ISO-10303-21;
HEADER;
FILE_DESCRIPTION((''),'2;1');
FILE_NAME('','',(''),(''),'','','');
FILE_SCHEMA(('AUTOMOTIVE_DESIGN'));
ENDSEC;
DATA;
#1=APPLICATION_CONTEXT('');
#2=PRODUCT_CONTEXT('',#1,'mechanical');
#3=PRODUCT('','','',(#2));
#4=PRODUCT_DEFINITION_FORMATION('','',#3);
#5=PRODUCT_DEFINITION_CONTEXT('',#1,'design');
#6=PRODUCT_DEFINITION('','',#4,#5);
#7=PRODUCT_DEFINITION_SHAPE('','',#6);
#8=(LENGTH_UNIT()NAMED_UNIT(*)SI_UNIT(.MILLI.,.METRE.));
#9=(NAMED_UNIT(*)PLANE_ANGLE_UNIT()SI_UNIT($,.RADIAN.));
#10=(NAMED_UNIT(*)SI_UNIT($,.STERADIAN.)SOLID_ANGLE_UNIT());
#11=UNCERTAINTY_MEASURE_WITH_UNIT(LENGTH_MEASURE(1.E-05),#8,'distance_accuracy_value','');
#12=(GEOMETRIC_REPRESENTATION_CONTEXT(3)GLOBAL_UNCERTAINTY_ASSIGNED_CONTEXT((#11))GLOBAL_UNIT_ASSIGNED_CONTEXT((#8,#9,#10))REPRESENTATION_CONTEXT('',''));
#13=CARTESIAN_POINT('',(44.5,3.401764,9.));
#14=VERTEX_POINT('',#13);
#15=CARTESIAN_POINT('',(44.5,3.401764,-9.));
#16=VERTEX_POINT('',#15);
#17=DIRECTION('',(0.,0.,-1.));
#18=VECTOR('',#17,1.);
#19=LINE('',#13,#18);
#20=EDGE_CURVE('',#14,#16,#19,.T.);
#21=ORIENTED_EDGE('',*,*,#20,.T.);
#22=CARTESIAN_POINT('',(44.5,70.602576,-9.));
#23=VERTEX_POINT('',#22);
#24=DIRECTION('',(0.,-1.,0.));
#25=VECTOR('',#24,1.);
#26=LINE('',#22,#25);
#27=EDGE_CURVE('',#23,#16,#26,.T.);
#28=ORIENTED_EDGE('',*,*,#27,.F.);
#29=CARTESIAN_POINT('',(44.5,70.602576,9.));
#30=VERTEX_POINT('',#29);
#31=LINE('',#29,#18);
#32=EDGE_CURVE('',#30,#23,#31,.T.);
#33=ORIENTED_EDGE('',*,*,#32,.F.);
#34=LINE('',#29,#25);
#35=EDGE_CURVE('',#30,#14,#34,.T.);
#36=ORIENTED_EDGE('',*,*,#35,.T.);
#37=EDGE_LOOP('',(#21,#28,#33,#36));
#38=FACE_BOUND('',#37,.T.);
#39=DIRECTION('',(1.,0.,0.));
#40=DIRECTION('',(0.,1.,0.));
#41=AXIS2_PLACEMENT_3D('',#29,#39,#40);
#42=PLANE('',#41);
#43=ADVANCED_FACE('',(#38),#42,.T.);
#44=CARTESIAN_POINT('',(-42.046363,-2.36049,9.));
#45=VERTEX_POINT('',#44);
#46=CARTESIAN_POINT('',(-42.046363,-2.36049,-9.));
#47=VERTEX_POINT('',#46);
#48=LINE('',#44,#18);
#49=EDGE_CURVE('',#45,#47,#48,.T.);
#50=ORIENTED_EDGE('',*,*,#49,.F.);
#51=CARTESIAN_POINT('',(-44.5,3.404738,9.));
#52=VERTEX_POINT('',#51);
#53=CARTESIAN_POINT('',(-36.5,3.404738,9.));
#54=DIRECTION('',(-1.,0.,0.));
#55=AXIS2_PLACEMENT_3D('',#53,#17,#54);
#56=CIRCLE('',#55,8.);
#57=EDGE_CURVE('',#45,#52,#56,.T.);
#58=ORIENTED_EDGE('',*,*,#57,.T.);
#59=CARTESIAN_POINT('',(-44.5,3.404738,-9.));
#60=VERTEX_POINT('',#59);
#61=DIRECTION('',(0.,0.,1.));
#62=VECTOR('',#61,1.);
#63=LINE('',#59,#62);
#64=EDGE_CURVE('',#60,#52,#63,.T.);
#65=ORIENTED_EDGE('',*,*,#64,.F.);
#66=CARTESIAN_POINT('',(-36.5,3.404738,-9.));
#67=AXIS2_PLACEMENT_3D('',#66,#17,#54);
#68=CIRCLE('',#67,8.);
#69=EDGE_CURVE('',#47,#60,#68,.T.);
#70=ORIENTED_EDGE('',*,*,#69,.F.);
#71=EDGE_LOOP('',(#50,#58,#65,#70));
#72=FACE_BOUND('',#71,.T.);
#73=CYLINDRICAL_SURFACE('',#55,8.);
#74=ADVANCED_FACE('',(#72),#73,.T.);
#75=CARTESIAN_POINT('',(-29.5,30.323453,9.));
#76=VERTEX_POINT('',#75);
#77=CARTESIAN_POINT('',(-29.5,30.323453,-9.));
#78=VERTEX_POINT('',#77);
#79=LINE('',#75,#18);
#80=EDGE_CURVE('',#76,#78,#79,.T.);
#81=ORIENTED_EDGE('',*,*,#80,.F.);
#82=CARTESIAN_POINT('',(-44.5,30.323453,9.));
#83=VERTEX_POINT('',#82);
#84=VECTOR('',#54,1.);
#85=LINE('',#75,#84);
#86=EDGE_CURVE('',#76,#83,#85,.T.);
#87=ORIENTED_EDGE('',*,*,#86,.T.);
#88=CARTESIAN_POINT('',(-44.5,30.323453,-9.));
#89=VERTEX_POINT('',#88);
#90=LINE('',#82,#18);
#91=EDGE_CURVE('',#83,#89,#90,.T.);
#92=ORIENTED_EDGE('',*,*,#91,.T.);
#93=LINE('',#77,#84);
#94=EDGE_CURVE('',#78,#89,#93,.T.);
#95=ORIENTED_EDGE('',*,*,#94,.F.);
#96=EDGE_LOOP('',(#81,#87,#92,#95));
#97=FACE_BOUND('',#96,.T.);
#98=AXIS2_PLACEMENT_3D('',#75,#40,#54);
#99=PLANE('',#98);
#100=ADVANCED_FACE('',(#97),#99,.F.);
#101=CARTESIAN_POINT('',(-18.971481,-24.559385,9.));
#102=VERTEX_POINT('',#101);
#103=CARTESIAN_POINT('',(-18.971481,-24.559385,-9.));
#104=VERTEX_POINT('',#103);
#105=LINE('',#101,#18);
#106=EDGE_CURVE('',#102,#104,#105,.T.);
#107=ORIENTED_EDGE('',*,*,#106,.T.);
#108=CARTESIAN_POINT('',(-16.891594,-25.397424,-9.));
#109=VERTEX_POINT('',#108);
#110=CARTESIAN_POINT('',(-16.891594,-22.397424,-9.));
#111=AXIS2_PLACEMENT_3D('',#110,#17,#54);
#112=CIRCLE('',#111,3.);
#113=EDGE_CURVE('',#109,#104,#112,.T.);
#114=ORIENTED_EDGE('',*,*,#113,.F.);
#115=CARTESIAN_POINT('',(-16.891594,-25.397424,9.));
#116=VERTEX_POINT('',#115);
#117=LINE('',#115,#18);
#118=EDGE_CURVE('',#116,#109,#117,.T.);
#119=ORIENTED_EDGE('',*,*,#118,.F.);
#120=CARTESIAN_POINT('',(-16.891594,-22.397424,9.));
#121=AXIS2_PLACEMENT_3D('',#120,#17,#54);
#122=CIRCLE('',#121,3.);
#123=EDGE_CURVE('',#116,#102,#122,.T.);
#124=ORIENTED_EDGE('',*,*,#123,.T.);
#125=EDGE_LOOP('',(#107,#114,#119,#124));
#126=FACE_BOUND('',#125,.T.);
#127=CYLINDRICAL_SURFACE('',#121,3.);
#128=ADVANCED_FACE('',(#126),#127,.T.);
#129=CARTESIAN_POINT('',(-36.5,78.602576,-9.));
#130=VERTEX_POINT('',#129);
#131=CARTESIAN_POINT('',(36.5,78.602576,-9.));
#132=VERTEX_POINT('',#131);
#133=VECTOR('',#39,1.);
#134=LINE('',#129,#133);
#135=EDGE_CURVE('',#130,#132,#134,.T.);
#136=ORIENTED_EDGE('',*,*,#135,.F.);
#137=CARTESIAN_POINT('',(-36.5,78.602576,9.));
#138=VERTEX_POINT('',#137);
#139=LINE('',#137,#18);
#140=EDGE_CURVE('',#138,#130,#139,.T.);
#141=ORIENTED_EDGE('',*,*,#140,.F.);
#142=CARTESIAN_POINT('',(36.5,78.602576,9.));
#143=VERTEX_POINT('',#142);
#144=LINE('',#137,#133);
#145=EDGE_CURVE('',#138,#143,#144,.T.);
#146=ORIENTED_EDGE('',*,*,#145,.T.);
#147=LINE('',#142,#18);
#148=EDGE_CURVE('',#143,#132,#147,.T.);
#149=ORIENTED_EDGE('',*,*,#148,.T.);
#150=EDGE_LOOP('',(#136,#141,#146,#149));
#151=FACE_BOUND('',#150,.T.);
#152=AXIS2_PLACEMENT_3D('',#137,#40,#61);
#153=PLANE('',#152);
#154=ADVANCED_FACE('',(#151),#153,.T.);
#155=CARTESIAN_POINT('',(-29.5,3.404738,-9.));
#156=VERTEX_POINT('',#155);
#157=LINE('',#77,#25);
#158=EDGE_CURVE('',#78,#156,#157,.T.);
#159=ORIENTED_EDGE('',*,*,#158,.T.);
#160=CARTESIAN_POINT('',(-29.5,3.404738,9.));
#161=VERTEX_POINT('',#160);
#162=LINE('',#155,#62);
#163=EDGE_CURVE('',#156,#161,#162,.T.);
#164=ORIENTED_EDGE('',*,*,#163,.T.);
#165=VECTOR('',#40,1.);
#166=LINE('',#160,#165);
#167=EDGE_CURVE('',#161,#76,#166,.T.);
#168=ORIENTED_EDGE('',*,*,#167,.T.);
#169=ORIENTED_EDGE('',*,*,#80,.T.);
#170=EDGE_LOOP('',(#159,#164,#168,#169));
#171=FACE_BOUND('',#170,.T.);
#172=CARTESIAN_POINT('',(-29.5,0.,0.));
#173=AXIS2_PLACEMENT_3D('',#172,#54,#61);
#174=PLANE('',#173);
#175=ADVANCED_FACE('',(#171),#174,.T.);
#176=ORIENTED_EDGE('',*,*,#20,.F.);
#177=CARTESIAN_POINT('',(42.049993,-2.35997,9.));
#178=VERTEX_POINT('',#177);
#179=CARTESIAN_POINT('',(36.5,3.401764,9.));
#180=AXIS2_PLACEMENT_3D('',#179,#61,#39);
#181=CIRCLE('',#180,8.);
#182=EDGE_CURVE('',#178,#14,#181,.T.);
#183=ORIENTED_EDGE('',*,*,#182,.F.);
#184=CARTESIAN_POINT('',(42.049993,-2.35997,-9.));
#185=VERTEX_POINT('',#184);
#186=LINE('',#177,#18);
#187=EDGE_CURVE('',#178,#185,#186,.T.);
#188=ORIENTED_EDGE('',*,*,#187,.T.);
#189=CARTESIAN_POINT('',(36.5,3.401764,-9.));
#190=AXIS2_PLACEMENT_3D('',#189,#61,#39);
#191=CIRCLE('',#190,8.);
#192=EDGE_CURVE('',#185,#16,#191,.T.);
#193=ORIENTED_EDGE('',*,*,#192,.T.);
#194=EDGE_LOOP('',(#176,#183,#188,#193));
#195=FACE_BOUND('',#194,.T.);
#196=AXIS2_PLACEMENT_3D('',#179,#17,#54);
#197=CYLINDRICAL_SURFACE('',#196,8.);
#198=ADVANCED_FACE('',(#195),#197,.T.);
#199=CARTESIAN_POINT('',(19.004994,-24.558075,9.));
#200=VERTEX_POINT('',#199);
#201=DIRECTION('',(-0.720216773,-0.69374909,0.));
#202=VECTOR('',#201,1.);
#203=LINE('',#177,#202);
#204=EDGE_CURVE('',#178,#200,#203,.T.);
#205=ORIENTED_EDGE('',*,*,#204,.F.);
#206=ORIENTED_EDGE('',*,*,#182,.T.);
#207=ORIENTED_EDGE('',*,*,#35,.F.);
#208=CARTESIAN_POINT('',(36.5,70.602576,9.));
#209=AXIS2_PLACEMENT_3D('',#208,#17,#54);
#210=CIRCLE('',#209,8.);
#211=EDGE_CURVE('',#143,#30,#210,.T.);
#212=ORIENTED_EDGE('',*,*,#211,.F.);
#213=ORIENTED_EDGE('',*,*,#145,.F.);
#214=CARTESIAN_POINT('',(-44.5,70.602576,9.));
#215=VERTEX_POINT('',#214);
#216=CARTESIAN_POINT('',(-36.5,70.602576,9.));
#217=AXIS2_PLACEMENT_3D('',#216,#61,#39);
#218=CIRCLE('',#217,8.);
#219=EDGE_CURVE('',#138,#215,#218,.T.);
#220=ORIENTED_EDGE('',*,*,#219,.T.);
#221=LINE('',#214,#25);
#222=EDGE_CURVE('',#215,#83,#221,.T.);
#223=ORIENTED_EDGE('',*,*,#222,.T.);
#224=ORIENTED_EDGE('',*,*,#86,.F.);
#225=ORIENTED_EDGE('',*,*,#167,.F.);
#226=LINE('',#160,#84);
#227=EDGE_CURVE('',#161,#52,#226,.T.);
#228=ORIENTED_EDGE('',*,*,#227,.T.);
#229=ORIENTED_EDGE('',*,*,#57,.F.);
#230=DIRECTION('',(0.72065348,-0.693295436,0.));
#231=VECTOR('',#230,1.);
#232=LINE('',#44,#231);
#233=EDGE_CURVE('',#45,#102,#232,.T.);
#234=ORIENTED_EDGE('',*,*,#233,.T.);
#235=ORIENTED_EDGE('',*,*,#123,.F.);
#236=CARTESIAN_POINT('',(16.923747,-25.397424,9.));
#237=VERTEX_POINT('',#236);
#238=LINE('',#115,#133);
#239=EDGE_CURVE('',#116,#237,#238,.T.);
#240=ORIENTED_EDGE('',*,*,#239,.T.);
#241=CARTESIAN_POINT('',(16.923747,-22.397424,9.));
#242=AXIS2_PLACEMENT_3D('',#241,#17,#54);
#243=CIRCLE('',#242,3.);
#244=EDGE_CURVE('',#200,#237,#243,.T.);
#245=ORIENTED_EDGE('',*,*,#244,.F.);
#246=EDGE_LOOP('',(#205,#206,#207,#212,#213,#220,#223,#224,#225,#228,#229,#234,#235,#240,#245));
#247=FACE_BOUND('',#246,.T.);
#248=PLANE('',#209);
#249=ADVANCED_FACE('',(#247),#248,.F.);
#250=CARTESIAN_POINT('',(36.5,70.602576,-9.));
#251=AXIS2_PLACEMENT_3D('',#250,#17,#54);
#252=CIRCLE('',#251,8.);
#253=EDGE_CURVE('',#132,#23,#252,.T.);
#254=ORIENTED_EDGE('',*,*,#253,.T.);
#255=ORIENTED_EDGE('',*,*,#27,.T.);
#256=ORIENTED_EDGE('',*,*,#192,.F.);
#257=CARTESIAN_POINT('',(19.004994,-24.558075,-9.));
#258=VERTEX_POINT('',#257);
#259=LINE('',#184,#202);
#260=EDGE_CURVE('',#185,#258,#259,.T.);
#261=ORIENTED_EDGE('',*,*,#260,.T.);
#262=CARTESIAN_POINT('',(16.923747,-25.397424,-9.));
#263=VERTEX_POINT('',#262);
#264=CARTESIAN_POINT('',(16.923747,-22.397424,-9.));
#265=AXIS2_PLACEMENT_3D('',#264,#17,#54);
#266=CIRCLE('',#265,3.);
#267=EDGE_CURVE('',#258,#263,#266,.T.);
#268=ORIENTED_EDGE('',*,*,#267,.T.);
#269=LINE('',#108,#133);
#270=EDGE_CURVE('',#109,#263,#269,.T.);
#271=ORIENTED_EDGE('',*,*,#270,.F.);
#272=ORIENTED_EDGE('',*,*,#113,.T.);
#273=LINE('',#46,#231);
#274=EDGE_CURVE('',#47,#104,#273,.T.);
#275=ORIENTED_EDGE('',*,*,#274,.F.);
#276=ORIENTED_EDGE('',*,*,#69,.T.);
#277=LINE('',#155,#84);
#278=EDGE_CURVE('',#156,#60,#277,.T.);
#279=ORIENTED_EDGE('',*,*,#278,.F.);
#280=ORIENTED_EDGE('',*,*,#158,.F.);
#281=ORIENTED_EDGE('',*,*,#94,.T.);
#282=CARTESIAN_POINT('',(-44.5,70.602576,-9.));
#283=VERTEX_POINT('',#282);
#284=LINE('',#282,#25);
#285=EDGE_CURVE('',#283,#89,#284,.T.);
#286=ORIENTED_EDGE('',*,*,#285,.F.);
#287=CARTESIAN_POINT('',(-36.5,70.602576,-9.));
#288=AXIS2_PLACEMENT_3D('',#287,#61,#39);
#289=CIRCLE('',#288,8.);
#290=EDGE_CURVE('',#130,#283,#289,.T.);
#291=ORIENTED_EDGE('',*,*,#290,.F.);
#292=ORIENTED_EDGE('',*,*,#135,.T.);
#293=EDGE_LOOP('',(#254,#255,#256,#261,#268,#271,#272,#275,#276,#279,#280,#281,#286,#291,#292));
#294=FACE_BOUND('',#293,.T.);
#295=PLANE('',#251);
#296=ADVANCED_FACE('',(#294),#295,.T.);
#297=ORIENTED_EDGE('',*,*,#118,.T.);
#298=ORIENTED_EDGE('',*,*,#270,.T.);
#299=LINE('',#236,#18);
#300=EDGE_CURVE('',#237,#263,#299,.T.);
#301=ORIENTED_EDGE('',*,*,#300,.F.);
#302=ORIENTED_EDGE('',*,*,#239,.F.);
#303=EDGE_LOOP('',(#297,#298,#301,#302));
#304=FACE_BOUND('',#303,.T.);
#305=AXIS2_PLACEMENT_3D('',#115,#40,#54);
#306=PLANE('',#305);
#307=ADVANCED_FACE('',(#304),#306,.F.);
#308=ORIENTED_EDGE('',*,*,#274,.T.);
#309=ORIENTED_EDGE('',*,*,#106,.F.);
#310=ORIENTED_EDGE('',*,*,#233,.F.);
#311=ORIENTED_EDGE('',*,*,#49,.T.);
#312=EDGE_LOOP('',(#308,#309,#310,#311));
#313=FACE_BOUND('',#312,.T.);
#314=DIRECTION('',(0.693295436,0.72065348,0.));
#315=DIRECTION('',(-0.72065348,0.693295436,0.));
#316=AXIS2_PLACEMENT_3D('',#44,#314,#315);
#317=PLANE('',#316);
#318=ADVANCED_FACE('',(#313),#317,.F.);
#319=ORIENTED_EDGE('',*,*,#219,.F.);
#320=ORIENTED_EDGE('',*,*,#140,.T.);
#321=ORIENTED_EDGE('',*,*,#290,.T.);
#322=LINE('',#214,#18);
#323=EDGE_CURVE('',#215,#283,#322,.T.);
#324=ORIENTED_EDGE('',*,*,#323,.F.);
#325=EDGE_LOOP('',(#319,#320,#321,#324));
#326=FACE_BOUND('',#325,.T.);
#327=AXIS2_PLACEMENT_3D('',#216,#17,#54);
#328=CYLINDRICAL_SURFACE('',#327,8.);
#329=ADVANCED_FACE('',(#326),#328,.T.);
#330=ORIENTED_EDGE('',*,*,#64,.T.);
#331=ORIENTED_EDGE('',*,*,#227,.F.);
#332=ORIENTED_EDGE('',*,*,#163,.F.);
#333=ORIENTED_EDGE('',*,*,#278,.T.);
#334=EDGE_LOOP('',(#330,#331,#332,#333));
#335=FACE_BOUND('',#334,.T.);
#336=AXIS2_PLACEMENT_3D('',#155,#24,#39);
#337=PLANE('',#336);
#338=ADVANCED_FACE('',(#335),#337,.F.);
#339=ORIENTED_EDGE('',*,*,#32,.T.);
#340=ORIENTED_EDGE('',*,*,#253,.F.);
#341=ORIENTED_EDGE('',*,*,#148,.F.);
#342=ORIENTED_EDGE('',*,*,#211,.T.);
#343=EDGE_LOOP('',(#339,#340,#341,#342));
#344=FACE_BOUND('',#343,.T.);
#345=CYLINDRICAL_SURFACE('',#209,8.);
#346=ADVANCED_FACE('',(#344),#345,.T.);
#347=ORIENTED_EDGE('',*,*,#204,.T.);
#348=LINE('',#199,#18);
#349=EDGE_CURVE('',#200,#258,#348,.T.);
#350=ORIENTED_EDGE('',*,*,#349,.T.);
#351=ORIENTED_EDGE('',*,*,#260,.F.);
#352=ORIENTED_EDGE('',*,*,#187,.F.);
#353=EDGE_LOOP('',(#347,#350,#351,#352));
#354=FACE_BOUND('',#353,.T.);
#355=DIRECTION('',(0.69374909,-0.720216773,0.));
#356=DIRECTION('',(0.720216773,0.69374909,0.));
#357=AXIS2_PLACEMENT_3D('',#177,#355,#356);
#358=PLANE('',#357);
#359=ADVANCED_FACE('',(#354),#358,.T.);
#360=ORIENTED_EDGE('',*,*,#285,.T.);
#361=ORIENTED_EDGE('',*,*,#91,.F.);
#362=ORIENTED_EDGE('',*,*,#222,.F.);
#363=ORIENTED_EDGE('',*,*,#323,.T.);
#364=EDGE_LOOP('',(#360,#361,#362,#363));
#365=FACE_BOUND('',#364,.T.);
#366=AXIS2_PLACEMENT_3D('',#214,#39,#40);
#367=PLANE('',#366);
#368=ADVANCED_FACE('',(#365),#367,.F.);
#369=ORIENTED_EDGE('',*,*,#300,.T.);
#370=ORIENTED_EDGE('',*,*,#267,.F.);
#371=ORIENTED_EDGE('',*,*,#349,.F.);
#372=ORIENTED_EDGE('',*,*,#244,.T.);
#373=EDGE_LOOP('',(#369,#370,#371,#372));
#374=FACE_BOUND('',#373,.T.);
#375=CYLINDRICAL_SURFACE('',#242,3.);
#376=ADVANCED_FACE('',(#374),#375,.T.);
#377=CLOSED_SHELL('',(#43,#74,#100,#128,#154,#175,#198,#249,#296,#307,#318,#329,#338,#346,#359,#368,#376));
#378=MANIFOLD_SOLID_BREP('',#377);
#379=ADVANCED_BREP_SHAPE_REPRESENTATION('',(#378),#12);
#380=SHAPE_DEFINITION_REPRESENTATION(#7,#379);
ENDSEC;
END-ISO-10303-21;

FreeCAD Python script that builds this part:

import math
import FreeCAD as App
import Part
import Sketcher
Q = App.Units.Quantity

doc = App.newDocument("Part")
body = doc.addObject("PartDesign::Body", "Body")

sketch1 = doc.addObject("Sketcher::SketchObject", "Sketch")
body.addObject(sketch1)
sketch1.AttachmentSupport = (doc.XY_Plane, [""])
sketch1.MapMode = "FlatFace"
sketch1.addGeometry([
    Part.LineSegment(App.Vector(36.5, 78.6, 0), App.Vector(-36.5, 78.6, 0)),
    Part.ArcOfCircle(Part.Circle(App.Vector(-36.5, 70.6, 0), App.Vector(0, 0, 1), 8), math.radians(90), math.radians(180)),
    Part.LineSegment(App.Vector(-44.5, 70.6, 0), App.Vector(-44.5, 3.4, 0)),
    Part.ArcOfCircle(Part.Circle(App.Vector(-36.5, 3.4, 0), App.Vector(0, 0, 1), 8), math.radians(180), math.radians(226)),
    Part.LineSegment(App.Vector(-42, -2.4, 0), App.Vector(-19, -24.6, 0)),
    Part.ArcOfCircle(Part.Circle(App.Vector(-16.9, -22.4, 0), App.Vector(0, 0, 1), 3), math.radians(-134), math.radians(-90)),
    Part.LineSegment(App.Vector(-16.9, -25.4, 0), App.Vector(16.9, -25.4, 0)),
    Part.ArcOfCircle(Part.Circle(App.Vector(16.9, -22.4, 0), App.Vector(0, 0, 1), 3), math.radians(-90), math.radians(-46)),
    Part.LineSegment(App.Vector(19, -24.6, 0), App.Vector(42, -2.4, 0)),
    Part.ArcOfCircle(Part.Circle(App.Vector(36.5, 3.4, 0), App.Vector(0, 0, 1), 8), math.radians(-46), math.radians(0)),
    Part.LineSegment(App.Vector(44.5, 3.4, 0), App.Vector(44.5, 70.6, 0)),
    Part.ArcOfCircle(Part.Circle(App.Vector(36.5, 70.6, 0), App.Vector(0, 0, 1), 8), math.radians(0), math.radians(90)),
], False)
sketch1.addConstraint([
    Sketcher.Constraint("Tangent", 0, 2, 1, 1),
    Sketcher.Constraint("Tangent", 1, 2, 2, 1),
    Sketcher.Constraint("Tangent", 2, 2, 3, 1),
    Sketcher.Constraint("Tangent", 3, 2, 4, 1),
    Sketcher.Constraint("Tangent", 4, 2, 5, 1),
    Sketcher.Constraint("Tangent", 5, 2, 6, 1),
    Sketcher.Constraint("Tangent", 6, 2, 7, 1),
    Sketcher.Constraint("Tangent", 7, 2, 8, 1),
    Sketcher.Constraint("Tangent", 8, 2, 9, 1),
    Sketcher.Constraint("Tangent", 9, 2, 10, 1),
    Sketcher.Constraint("Tangent", 10, 2, 11, 1),
    Sketcher.Constraint("Tangent", 11, 2, 0, 1),
    Sketcher.Constraint("Horizontal", 0),
    Sketcher.Constraint("Vertical", 2),
    Sketcher.Constraint("Horizontal", 6),
    Sketcher.Constraint("Vertical", 10),
    Sketcher.Constraint("Equal", 1, 3),
    Sketcher.Constraint("Equal", 5, 7),
    Sketcher.Constraint("Equal", 3, 9),
    Sketcher.Constraint("Equal", 9, 11),
    Sketcher.Constraint("Radius", 1, Q("8 mm")),
    Sketcher.Constraint("Radius", 5, Q("3 mm")),
    Sketcher.Constraint("DistanceX", 0, 2, 0, 1, Q("73 mm")),
    Sketcher.Constraint("DistanceY", 5, 3, 1, 3, Q("93 mm")),
    Sketcher.Constraint("DistanceX", 1, 3, -1, 1, Q("36.5 mm")),
    Sketcher.Constraint("DistanceX", 7, 2, 8, 2, Q("23.044999 mm")),
    Sketcher.Constraint("DistanceX", 6, 1, 6, 2, Q("33.815341 mm")),
    Sketcher.Constraint("Distance", 8, Q("31.997309 mm")),
    Sketcher.Constraint("DistanceY", 2, 2, 2, 1, Q("67.197837 mm")),
    Sketcher.Constraint("DistanceY", -1, 1, 3, 3, Q("3.404738 mm")),
])
pad1 = doc.addObject("PartDesign::Pad", "Pad")
body.addObject(pad1)
pad1.Profile = sketch1
pad1.Length = 18
pad1.Midplane = True
body2 = doc.addObject("PartDesign::Body", "Body001")

sketch2 = doc.addObject("Sketcher::SketchObject", "Sketch001")
body2.addObject(sketch2)
sketch2.AttachmentSupport = (doc.getObject("YZ_Plane001"), [""])
sketch2.MapMode = "FlatFace"
sketch2.AttachmentOffset = App.Placement(App.Vector(0, 0, -44.5), App.Rotation())
sketch2.addGeometry([
    Part.LineSegment(App.Vector(30, -9, 0), App.Vector(3, -9, 0)),
    Part.LineSegment(App.Vector(3, -9, 0), App.Vector(3, 9, 0)),
    Part.LineSegment(App.Vector(3, 9, 0), App.Vector(30, 9, 0)),
    Part.LineSegment(App.Vector(30, 9, 0), App.Vector(30, -9, 0)),
], False)
sketch2.addConstraint([
    Sketcher.Constraint("Coincident", 0, 2, 1, 1),
    Sketcher.Constraint("Coincident", 1, 2, 2, 1),
    Sketcher.Constraint("Coincident", 2, 2, 3, 1),
    Sketcher.Constraint("Coincident", 3, 2, 0, 1),
    Sketcher.Constraint("Horizontal", 0),
    Sketcher.Constraint("Vertical", 1),
    Sketcher.Constraint("Horizontal", 2),
    Sketcher.Constraint("Vertical", 3),
    Sketcher.Constraint("DistanceY", 1, 1, 1, 2, Q("18 mm")),
    Sketcher.Constraint("DistanceY", 0, 2, -1, 1, Q("9 mm")),
    Sketcher.Constraint("DistanceX", 0, 2, 0, 1, Q("26.918715 mm")),
    Sketcher.Constraint("DistanceX", -1, 1, 0, 2, Q("3.404738 mm")),
])
pad2 = doc.addObject("PartDesign::Pad", "Pad001")
body2.addObject(pad2)
pad2.Profile = sketch2
pad2.Length = 15
doc.recompute()

boolean = doc.addObject("PartDesign::Boolean", "Boolean")
body.addObject(boolean)
boolean.Type = "Cut"
boolean.addObjects([body2])

doc.recompute()
